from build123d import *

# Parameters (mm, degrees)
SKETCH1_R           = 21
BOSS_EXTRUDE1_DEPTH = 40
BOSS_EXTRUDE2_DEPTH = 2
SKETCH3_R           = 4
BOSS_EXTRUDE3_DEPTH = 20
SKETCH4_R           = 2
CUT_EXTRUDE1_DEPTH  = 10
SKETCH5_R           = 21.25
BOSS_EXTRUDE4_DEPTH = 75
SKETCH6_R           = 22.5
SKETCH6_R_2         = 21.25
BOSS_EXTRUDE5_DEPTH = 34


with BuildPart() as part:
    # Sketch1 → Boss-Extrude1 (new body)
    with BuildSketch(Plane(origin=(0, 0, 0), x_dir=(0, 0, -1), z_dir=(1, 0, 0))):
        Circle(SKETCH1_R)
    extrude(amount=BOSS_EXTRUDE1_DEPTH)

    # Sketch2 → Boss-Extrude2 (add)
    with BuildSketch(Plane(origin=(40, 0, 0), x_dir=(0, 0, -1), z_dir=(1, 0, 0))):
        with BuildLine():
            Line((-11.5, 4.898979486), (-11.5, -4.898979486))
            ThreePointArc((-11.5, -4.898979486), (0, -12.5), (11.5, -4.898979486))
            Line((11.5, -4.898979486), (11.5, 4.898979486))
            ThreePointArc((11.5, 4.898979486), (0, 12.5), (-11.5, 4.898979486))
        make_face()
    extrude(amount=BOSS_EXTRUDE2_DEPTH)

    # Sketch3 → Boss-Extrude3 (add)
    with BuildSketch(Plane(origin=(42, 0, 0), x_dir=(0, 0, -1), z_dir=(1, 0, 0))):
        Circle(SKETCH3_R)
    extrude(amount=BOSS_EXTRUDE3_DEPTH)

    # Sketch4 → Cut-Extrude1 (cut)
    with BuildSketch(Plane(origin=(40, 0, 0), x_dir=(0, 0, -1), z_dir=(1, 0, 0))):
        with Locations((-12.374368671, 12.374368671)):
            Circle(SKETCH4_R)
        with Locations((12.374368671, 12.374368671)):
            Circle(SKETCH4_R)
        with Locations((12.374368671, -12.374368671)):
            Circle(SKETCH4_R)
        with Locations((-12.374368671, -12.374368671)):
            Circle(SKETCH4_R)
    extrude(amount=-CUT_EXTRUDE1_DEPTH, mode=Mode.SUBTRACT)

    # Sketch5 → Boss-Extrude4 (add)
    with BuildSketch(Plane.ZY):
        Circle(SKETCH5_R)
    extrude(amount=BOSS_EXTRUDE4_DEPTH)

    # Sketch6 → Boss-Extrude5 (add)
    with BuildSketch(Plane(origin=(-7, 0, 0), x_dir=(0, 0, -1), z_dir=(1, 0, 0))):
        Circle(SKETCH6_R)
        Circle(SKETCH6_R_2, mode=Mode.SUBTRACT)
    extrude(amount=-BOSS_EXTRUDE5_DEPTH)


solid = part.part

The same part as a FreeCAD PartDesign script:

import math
import FreeCAD as App
import Part
import Sketcher
from FreeCAD import Vector

doc = App.newDocument("Part")
body = doc.addObject("PartDesign::Body", "Body")

# Sketch on YZ plane
sketch1 = body.newObject("Sketcher::SketchObject", "Sketch")
sketch1.AttachmentSupport = (doc.getObject("YZ_Plane"), [""])
sketch1.MapMode = "FlatFace"
sketch1.addGeometry(Part.Circle(Vector(0, 0, 0), Vector(0, 0, 1), 21), False)
sketch1.addConstraint([
    Sketcher.Constraint("Coincident", 0, 3, -1, 1),
    Sketcher.Constraint("Diameter", 0, 42.0),
])
pad1 = body.newObject("PartDesign::Pad", "Pad")
pad1.Profile = sketch1
pad1.Length = 40

# Sketch on YZ plane
sketch2 = body.newObject("Sketcher::SketchObject", "Sketch001")
sketch2.AttachmentSupport = (doc.getObject("YZ_Plane"), [""])
sketch2.MapMode = "FlatFace"
sketch2.AttachmentOffset = App.Placement(Vector(0, 0, 40), App.Rotation())
sketch2.addGeometry([
    Part.LineSegment(Vector(4.898979, 11.5, 0), Vector(-4.898979, 11.5, 0)),
    Part.ArcOfCircle(Part.Circle(Vector(0, 0, 0), Vector(0, 0, 1), 12.5), math.radians(113.073918), math.radians(246.926082)),
    Part.LineSegment(Vector(-4.898979, -11.5, 0), Vector(4.898979, -11.5, 0)),
    Part.ArcOfCircle(Part.Circle(Vector(0, 0, 0), Vector(0, 0, 1), 12.5), math.radians(-66.926082), math.radians(66.926082)),
], False)
sketch2.addConstraint([
    Sketcher.Constraint("Coincident", 0, 2, 1, 1),
    Sketcher.Constraint("Coincident", 1, 2, 2, 1),
    Sketcher.Constraint("Coincident", 2, 2, 3, 1),
    Sketcher.Constraint("Coincident", 3, 2, 0, 1),
    Sketcher.Constraint("Horizontal", 0),
    Sketcher.Constraint("Horizontal", 2),
    Sketcher.Constraint("Coincident", 1, 3, -1, 1),
    Sketcher.Constraint("Coincident", 3, 3, -1, 1),
    Sketcher.Constraint("Equal", 1, 3),
    Sketcher.Constraint("Vertical", 0, 2, 1, 2),
    Sketcher.Constraint("Radius", 1, 12.5),
    Sketcher.Constraint("DistanceY", 1, 2, 0, 2, 23.0),
])
pad2 = body.newObject("PartDesign::Pad", "Pad001")
pad2.Profile = sketch2
pad2.Length = 2

# Sketch on YZ plane
sketch3 = body.newObject("Sketcher::SketchObject", "Sketch002")
sketch3.AttachmentSupport = (doc.getObject("YZ_Plane"), [""])
sketch3.MapMode = "FlatFace"
sketch3.AttachmentOffset = App.Placement(Vector(0, 0, 42), App.Rotation())
sketch3.addGeometry(Part.Circle(Vector(0, 0, 0), Vector(0, 0, 1), 4), False)
sketch3.addConstraint([
    Sketcher.Constraint("Coincident", 0, 3, -1, 1),
    Sketcher.Constraint("Diameter", 0, 8.0),
])
pad3 = body.newObject("PartDesign::Pad", "Pad002")
pad3.Profile = sketch3
pad3.Length = 20

# Sketch on YZ plane
sketch4 = body.newObject("Sketcher::SketchObject", "Sketch003")
sketch4.AttachmentSupport = (doc.getObject("YZ_Plane"), [""])
sketch4.MapMode = "FlatFace"
sketch4.AttachmentOffset = App.Placement(Vector(0, 0, 40), App.Rotation())
sketch4.addGeometry([
    Part.Circle(Vector(12.374369, 12.374369, 0), Vector(0, 0, 1), 2),
    Part.Circle(Vector(12.374369, -12.374369, 0), Vector(0, 0, 1), 2),
    Part.Circle(Vector(-12.374369, -12.374369, 0), Vector(0, 0, 1), 2),
    Part.Circle(Vector(-12.374369, 12.374369, 0), Vector(0, 0, 1), 2),
], False)
sketch4.addConstraint([
    Sketcher.Constraint("Equal", 0, 1),
    Sketcher.Constraint("Equal", 1, 2),
    Sketcher.Constraint("Equal", 2, 3),
    Sketcher.Constraint("Symmetric", 0, 3, 2, 3, -1, 1),
    Sketcher.Constraint("Symmetric", 1, 3, 3, 3, -1, 1),
    Sketcher.Constraint("Symmetric", 1, 3, 2, 3, -2),
    Sketcher.Constraint("Diameter", 0, 4.0),
    Sketcher.Constraint("DistanceX", -1, 1, 0, 3, 12.374369),
    Sketcher.Constraint("DistanceY", -1, 1, 0, 3, 12.374369),
])
pocket1 = body.newObject("PartDesign::Pocket", "Pocket")
pocket1.Profile = sketch4
pocket1.Length = 10

# Sketch on YZ plane
sketch5 = body.newObject("Sketcher::SketchObject", "Sketch004")
sketch5.AttachmentSupport = (doc.getObject("YZ_Plane"), [""])
sketch5.MapMode = "FlatFace"
sketch5.addGeometry(Part.Circle(Vector(0, 0, 0), Vector(0, 0, 1), 21.25), False)
sketch5.addConstraint([
    Sketcher.Constraint("Coincident", 0, 3, -1, 1),
    Sketcher.Constraint("Diameter", 0, 42.5),
])
pad4 = body.newObject("PartDesign::Pad", "Pad003")
pad4.Profile = sketch5
pad4.Length = 75
pad4.Reversed = True

# Sketch on YZ plane
sketch6 = body.newObject("Sketcher::SketchObject", "Sketch005")
sketch6.AttachmentSupport = (doc.getObject("YZ_Plane"), [""])
sketch6.MapMode = "FlatFace"
sketch6.AttachmentOffset = App.Placement(Vector(0, 0, -7), App.Rotation())
sketch6.addGeometry([
    Part.Circle(Vector(0, 0, 0), Vector(0, 0, 1), 22.5),
    Part.Circle(Vector(0, 0, 0), Vector(0, 0, 1), 21.25),
], False)
sketch6.addConstraint([
    Sketcher.Constraint("Coincident", 0, 3, -1, 1),
    Sketcher.Constraint("Coincident", 1, 3, -1, 1),
    Sketcher.Constraint("Diameter", 0, 45.0),
    Sketcher.Constraint("Diameter", 1, 42.5),
])
pad5 = body.newObject("PartDesign::Pad", "Pad004")
pad5.Profile = sketch6
pad5.Length = 34
pad5.Reversed = True

doc.recompute()
